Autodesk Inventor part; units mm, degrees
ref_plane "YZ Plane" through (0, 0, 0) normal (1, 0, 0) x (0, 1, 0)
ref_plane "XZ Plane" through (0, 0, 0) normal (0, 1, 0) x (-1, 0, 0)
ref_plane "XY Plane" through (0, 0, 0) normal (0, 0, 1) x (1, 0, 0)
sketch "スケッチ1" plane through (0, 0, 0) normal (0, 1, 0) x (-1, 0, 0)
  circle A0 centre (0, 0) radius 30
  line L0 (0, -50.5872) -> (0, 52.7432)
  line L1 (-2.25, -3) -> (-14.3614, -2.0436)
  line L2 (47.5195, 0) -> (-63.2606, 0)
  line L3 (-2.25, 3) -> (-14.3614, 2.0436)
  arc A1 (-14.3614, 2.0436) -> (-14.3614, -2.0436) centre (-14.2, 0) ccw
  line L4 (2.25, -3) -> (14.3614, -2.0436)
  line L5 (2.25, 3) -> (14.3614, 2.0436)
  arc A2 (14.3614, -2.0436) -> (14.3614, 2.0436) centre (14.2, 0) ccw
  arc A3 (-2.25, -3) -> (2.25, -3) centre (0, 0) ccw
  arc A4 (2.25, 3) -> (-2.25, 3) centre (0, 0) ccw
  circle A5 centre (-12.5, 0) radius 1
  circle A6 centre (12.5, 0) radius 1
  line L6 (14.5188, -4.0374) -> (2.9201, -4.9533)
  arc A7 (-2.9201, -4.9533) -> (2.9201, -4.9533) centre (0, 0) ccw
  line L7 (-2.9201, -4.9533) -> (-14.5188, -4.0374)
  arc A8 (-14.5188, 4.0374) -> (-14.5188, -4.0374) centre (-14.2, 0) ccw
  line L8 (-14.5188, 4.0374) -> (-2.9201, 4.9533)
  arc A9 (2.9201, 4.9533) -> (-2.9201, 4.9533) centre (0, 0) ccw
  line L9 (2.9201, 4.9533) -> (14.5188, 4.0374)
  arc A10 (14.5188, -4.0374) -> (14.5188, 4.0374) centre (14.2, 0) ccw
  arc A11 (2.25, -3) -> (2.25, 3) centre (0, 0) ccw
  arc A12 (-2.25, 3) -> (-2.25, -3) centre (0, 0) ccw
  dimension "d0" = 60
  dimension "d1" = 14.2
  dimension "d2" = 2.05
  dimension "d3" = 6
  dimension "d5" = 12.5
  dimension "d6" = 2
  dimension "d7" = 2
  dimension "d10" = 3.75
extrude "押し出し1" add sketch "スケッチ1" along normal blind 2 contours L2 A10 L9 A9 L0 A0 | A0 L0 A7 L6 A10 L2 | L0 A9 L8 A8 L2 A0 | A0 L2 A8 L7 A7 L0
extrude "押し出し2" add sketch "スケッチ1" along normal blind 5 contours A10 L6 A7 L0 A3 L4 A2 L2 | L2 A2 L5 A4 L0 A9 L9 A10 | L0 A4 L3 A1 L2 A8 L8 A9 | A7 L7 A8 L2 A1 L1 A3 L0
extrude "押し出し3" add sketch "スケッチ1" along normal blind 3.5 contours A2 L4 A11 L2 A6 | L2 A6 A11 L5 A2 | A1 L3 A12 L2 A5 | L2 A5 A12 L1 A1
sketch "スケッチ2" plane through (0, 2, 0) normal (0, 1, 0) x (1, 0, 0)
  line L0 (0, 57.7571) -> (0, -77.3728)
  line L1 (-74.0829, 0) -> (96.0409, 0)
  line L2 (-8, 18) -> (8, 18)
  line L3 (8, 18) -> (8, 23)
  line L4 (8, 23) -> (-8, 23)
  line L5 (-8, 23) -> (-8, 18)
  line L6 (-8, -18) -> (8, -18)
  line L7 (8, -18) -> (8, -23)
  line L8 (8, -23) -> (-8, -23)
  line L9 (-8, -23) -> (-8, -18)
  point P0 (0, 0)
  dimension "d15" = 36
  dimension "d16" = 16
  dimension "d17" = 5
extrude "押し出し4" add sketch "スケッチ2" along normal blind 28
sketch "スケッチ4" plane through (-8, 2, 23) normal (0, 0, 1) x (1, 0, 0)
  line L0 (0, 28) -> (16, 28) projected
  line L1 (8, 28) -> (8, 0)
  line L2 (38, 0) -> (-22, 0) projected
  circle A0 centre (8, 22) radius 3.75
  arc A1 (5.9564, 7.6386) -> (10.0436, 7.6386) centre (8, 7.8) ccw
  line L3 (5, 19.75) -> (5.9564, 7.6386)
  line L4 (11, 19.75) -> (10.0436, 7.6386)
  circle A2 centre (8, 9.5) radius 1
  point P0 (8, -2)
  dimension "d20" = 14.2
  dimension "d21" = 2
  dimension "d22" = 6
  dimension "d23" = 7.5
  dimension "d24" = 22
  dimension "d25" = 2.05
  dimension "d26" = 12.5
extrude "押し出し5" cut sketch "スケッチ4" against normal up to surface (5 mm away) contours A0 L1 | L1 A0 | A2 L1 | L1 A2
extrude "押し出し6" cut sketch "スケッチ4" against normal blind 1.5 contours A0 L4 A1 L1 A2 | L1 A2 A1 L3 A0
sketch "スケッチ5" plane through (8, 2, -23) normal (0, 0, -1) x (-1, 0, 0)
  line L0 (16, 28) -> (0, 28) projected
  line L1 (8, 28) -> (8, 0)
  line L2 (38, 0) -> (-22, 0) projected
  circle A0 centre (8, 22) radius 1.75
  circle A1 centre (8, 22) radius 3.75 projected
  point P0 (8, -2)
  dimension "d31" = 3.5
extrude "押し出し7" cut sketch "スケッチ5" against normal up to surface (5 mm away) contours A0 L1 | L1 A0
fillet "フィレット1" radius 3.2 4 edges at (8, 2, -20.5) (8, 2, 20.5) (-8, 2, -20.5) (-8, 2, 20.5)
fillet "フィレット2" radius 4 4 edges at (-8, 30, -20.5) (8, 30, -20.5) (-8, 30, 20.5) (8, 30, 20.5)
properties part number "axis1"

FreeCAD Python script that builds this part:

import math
import FreeCAD as App
import Part
import Sketcher

V = App.Vector
Q = App.Units.Quantity


def edges_at(feature, points):
    """Names of the edges that pass closest to the given points."""
    edges = feature.Shape.Edges
    near = lambda p: min(range(len(edges)), key=lambda i: edges[i].distToShape(Part.Vertex(*p))[0])
    return sorted({f"Edge{near(p) + 1}" for p in points})

doc = App.newDocument("Part")
body = doc.addObject("PartDesign::Body", "Body")

# Sketch on XZ plane
sketch1 = doc.addObject("Sketcher::SketchObject", "Sketch")
body.addObject(sketch1)
sketch1.AttachmentSupport = (doc.XZ_Plane, [""])
sketch1.MapMode = "FlatFace"
sketch1.addGeometry([
    Part.Circle(V(0, 0, 0), V(0, 0, 1), 30),  # 0
    Part.ArcOfCircle(Part.Circle(V(-14.2, 0, 0), V(0, 0, 1), 4), math.radians(95), math.radians(265)),  # 1
    Part.LineSegment(V(-14.5, -4, 0), V(-2.9, -5, 0)),  # 2
    Part.ArcOfCircle(Part.Circle(V(0, 0, 0), V(0, 0, 1), 5.7), math.radians(-121), math.radians(-59)),  # 3
    Part.LineSegment(V(2.9, -5, 0), V(14.5, -4, 0)),  # 4
    Part.ArcOfCircle(Part.Circle(V(14.2, 0, 0), V(0, 0, 1), 4), math.radians(-85), math.radians(85)),  # 5
    Part.LineSegment(V(14.5, 4, 0), V(2.9, 5, 0)),  # 6
    Part.ArcOfCircle(Part.Circle(V(0, 0, 0), V(0, 0, 1), 5.7), math.radians(59), math.radians(121)),  # 7
    Part.LineSegment(V(-2.9, 5, 0), V(-14.5, 4, 0)),  # 8
], False)
sketch1.addConstraint([
    Sketcher.Constraint("Tangent", 1, 2, 2, 1),
    Sketcher.Constraint("Coincident", 2, 2, 3, 1),
    Sketcher.Constraint("Coincident", 3, 2, 4, 1),
    Sketcher.Constraint("Tangent", 4, 2, 5, 1),
    Sketcher.Constraint("Tangent", 5, 2, 6, 1),
    Sketcher.Constraint("Coincident", 6, 2, 7, 1),
    Sketcher.Constraint("Coincident", 7, 2, 8, 1),
    Sketcher.Constraint("Tangent", 8, 2, 1, 1),
    Sketcher.Constraint("Coincident", 0, 3, -1, 1),
    Sketcher.Constraint("Coincident", 3, 3, -1, 1),
    Sketcher.Constraint("Coincident", 7, 3, -1, 1),
    Sketcher.Constraint("Equal", 1, 5),
    Sketcher.Constraint("Equal", 3, 7),
    Sketcher.Constraint("Symmetric", 1, 3, 5, 3, -1, 1),
    Sketcher.Constraint("Symmetric", 1, 2, 4, 2, -2),
    Sketcher.Constraint("Parallel", 2, 6),
    Sketcher.Constraint("Parallel", 4, 8),
    Sketcher.Constraint("Diameter", 0, Q("60 mm")),
    Sketcher.Constraint("DistanceX", 1, 3, -1, 1, Q("14.2 mm")),
    Sketcher.Constraint("Radius", 1, Q("4.05 mm")),
    Sketcher.Constraint("Radius", 3, Q("5.75 mm")),
    Sketcher.Constraint("DistanceX", 2, 2, -1, 1, Q("2.92 mm")),
])
pad1 = doc.addObject("PartDesign::Pad", "Pad")
body.addObject(pad1)
pad1.Profile = sketch1
pad1.Length = 2
pad1.Reversed = True

# Sketch on XZ plane
sketch2 = doc.addObject("Sketcher::SketchObject", "Sketch001")
body.addObject(sketch2)
sketch2.AttachmentSupport = (doc.XZ_Plane, [""])
sketch2.MapMode = "FlatFace"
sketch2.addGeometry([
    Part.ArcOfCircle(Part.Circle(V(-14.2, 0, 0), V(0, 0, 1), 4), math.radians(95), math.radians(265)),  # 0
    Part.LineSegment(V(-14.5, 4, 0), V(-2.9, 5, 0)),  # 1
    Part.ArcOfCircle(Part.Circle(V(0, 0, 0), V(0, 0, 1), 5.7), math.radians(59), math.radians(121)),  # 2
    Part.LineSegment(V(2.9, 5, 0), V(14.5, 4, 0)),  # 3
    Part.ArcOfCircle(Part.Circle(V(14.2, 0, 0), V(0, 0, 1), 4), math.radians(-85), math.radians(85)),  # 4
    Part.LineSegment(V(14.5, -4, 0), V(2.9, -5, 0)),  # 5
    Part.ArcOfCircle(Part.Circle(V(0, 0, 0), V(0, 0, 1), 5.7), math.radians(-121), math.radians(-59)),  # 6
    Part.LineSegment(V(-2.9, -5, 0), V(-14.5, -4, 0)),  # 7
    Part.ArcOfCircle(Part.Circle(V(0, 0, 0), V(0, 0, 1), 3.8), math.radians(-127), math.radians(-53)),  # 8
    Part.LineSegment(V(2.2, -3, 0), V(14.4, -2, 0)),  # 9
    Part.ArcOfCircle(Part.Circle(V(14.2, 0, 0), V(0, 0, 1), 2), math.radians(-85), math.radians(85)),  # 10
    Part.LineSegment(V(14.4, 2, 0), V(2.2, 3, 0)),  # 11
    Part.ArcOfCircle(Part.Circle(V(0, 0, 0), V(0, 0, 1), 3.8), math.radians(53), math.radians(127)),  # 12
    Part.LineSegment(V(-2.2, 3, 0), V(-14.4, 2, 0)),  # 13
    Part.ArcOfCircle(Part.Circle(V(-14.2, 0, 0), V(0, 0, 1), 2), math.radians(95), math.radians(265)),  # 14
    Part.LineSegment(V(-14.4, -2, 0), V(-2.2, -3, 0)),  # 15
], False)
sketch2.addConstraint([
    Sketcher.Constraint("Tangent", 0, 1, 1, 1),
    Sketcher.Constraint("Coincident", 1, 2, 2, 2),
    Sketcher.Constraint("Coincident", 2, 1, 3, 1),
    Sketcher.Constraint("Tangent", 3, 2, 4, 2),
    Sketcher.Constraint("Tangent", 4, 1, 5, 1),
    Sketcher.Constraint("Coincident", 5, 2, 6, 2),
    Sketcher.Constraint("Coincident", 6, 1, 7, 1),
    Sketcher.Constraint("Tangent", 7, 2, 0, 2),
    Sketcher.Constraint("Coincident", 8, 2, 9, 1),
    Sketcher.Constraint("Tangent", 9, 2, 10, 1),
    Sketcher.Constraint("Tangent", 10, 2, 11, 1),
    Sketcher.Constraint("Coincident", 11, 2, 12, 1),
    Sketcher.Constraint("Coincident", 12, 2, 13, 1),
    Sketcher.Constraint("Tangent", 13, 2, 14, 1),
    Sketcher.Constraint("Tangent", 14, 2, 15, 1),
    Sketcher.Constraint("Coincident", 15, 2, 8, 1),
    Sketcher.Constraint("Coincident", 2, 3, -1, 1),
    Sketcher.Constraint("Coincident", 6, 3, -1, 1),
    Sketcher.Constraint("Coincident", 8, 3, -1, 1),
    Sketcher.Constraint("Coincident", 12, 3, -1, 1),
    Sketcher.Constraint("Coincident", 10, 3, 4, 3),
    Sketcher.Constraint("Coincident", 14, 3, 0, 3),
    Sketcher.Constraint("Equal", 0, 4),
    Sketcher.Constraint("Equal", 2, 6),
    Sketcher.Constraint("Equal", 8, 12),
    Sketcher.Constraint("Equal", 10, 14),
    Sketcher.Constraint("Symmetric", 0, 3, 4, 3, -1, 1),
    Sketcher.Constraint("Symmetric", 0, 1, 3, 2, -2),
    Sketcher.Constraint("Parallel", 1, 5),
    Sketcher.Constraint("Parallel", 3, 7),
    Sketcher.Constraint("Parallel", 5, 9),
    Sketcher.Constraint("Parallel", 7, 11),
    Sketcher.Constraint("Parallel", 9, 13),
    Sketcher.Constraint("Parallel", 11, 15),
    Sketcher.Constraint("Radius", 8, Q("3.75 mm")),
    Sketcher.Constraint("Radius", 10, Q("2.05 mm")),
    Sketcher.Constraint("DistanceX", 0, 3, -1, 1, Q("14.2 mm")),
    Sketcher.Constraint("Radius", 0, Q("4.05 mm")),
    Sketcher.Constraint("Radius", 2, Q("5.75 mm")),
    Sketcher.Constraint("DistanceY", 8, 2, -1, 1, Q("3 mm")),
])
pad2 = doc.addObject("PartDesign::Pad", "Pad001")
body.addObject(pad2)
pad2.Profile = sketch2
pad2.Length = 5
pad2.Reversed = True

# Sketch on XZ plane
sketch3 = doc.addObject("Sketcher::SketchObject", "Sketch002")
body.addObject(sketch3)
sketch3.AttachmentSupport = (doc.XZ_Plane, [""])
sketch3.MapMode = "FlatFace"
sketch3.addGeometry([
    Part.ArcOfCircle(Part.Circle(V(-14.2, 0, 0), V(0, 0, 1), 2), math.radians(95), math.radians(265)),  # 0
    Part.LineSegment(V(-14.4, 2, 0), V(-2.2, 3, 0)),  # 1
    Part.ArcOfCircle(Part.Circle(V(0, 0, 0), V(0, 0, 1), 3.8), math.radians(127), math.radians(233)),  # 2
    Part.LineSegment(V(-2.2, -3, 0), V(-14.4, -2, 0)),  # 3
    Part.Circle(V(-12.5, 0, 0), V(0, 0, 1), 1),  # 4
    Part.ArcOfCircle(Part.Circle(V(14.2, 0, 0), V(0, 0, 1), 2), math.radians(-85), math.radians(85)),  # 5
    Part.LineSegment(V(14.4, -2, 0), V(2.2, -3, 0)),  # 6
    Part.ArcOfCircle(Part.Circle(V(0, 0, 0), V(0, 0, 1), 3.8), math.radians(-53), math.radians(53)),  # 7
    Part.LineSegment(V(2.2, 3, 0), V(14.4, 2, 0)),  # 8
    Part.Circle(V(12.5, 0, 0), V(0, 0, 1), 1),  # 9
], False)
sketch3.addConstraint([
    Sketcher.Constraint("Tangent", 0, 1, 1, 1),
    Sketcher.Constraint("Coincident", 1, 2, 2, 1),
    Sketcher.Constraint("Coincident", 2, 2, 3, 1),
    Sketcher.Constraint("Tangent", 3, 2, 0, 2),
    Sketcher.Constraint("Tangent", 5, 1, 6, 1),
    Sketcher.Constraint("Coincident", 6, 2, 7, 1),
    Sketcher.Constraint("Coincident", 7, 2, 8, 1),
    Sketcher.Constraint("Tangent", 8, 2, 5, 2),
    Sketcher.Constraint("Coincident", 2, 3, -1, 1),
    Sketcher.Constraint("Coincident", 7, 3, -1, 1),
    Sketcher.Constraint("Equal", 0, 5),
    Sketcher.Constraint("Equal", 2, 7),
    Sketcher.Constraint("Equal", 4, 9),
    Sketcher.Constraint("Symmetric", 0, 3, 5, 3, -1, 1),
    Sketcher.Constraint("Symmetric", 4, 3, 9, 3, -1, 1),
    Sketcher.Constraint("Symmetric", 3, 2, 5, 1, -2),
    Sketcher.Constraint("PointOnObject", 4, 3, -1),
    Sketcher.Constraint("Parallel", 1, 6),
    Sketcher.Constraint("Parallel", 3, 8),
    Sketcher.Constraint("Diameter", 4, Q("2 mm")),
    Sketcher.Constraint("Radius", 0, Q("2.05 mm")),
    Sketcher.Constraint("Radius", 2, Q("3.75 mm")),
    Sketcher.Constraint("DistanceY", 2, 2, 1, 2, Q("6 mm")),
    Sketcher.Constraint("DistanceX", 0, 3, -1, 1, Q("14.2 mm")),
    Sketcher.Constraint("DistanceX", 4, 3, -1, 1, Q("12.5 mm")),
])
pad3 = doc.addObject("PartDesign::Pad", "Pad002")
body.addObject(pad3)
pad3.Profile = sketch3
pad3.Length = 3.5
pad3.Reversed = True

# Sketch on XZ plane
sketch4 = doc.addObject("Sketcher::SketchObject", "Sketch003")
body.addObject(sketch4)
sketch4.AttachmentSupport = (doc.XZ_Plane, [""])
sketch4.MapMode = "FlatFace"
sketch4.AttachmentOffset = App.Placement(V(0, 0, -2), App.Rotation())
sketch4.addGeometry([
    Part.LineSegment(V(8, -23, 0), V(-8, -23, 0)),  # 0
    Part.LineSegment(V(-8, -23, 0), V(-8, -18, 0)),  # 1
    Part.LineSegment(V(-8, -18, 0), V(8, -18, 0)),  # 2
    Part.LineSegment(V(8, -18, 0), V(8, -23, 0)),  # 3
    Part.LineSegment(V(8, 18, 0), V(-8, 18, 0)),  # 4
    Part.LineSegment(V(-8, 18, 0), V(-8, 23, 0)),  # 5
    Part.LineSegment(V(-8, 23, 0), V(8, 23, 0)),  # 6
    Part.LineSegment(V(8, 23, 0), V(8, 18, 0)),  # 7
], False)
sketch4.addConstraint([
    Sketcher.Constraint("Coincident", 0, 2, 1, 1),
    Sketcher.Constraint("Coincident", 1, 2, 2, 1),
    Sketcher.Constraint("Coincident", 2, 2, 3, 1),
    Sketcher.Constraint("Coincident", 3, 2, 0, 1),
    Sketcher.Constraint("Coincident", 4, 2, 5, 1),
    Sketcher.Constraint("Coincident", 5, 2, 6, 1),
    Sketcher.Constraint("Coincident", 6, 2, 7, 1),
    Sketcher.Constraint("Coincident", 7, 2, 4, 1),
    Sketcher.Constraint("Horizontal", 0),
    Sketcher.Constraint("Vertical", 1),
    Sketcher.Constraint("Horizontal", 2),
    Sketcher.Constraint("Vertical", 3),
    Sketcher.Constraint("Horizontal", 4),
    Sketcher.Constraint("Vertical", 5),
    Sketcher.Constraint("Horizontal", 6),
    Sketcher.Constraint("Vertical", 7),
    Sketcher.Constraint("Symmetric", 2, 2, 4, 2, -1, 1),
    Sketcher.Constraint("Symmetric", 0, 2, 6, 2, -1, 1),
    Sketcher.Constraint("Vertical", 1, 2, 4, 2),
    Sketcher.Constraint("DistanceX", 0, 2, 0, 1, Q("16 mm")),
    Sketcher.Constraint("DistanceY", 1, 1, 1, 2, Q("5 mm")),
    Sketcher.Constraint("DistanceY", 1, 2, 4, 2, Q("36 mm")),
])
pad4 = doc.addObject("PartDesign::Pad", "Pad003")
body.addObject(pad4)
pad4.Profile = sketch4
pad4.Length = 28
pad4.Reversed = True

# Sketch on XY plane
sketch5 = doc.addObject("Sketcher::SketchObject", "Sketch004")
body.addObject(sketch5)
sketch5.AttachmentSupport = (doc.XY_Plane, [""])
sketch5.MapMode = "FlatFace"
sketch5.AttachmentOffset = App.Placement(V(0, 0, 23), App.Rotation())
sketch5.addGeometry([
    Part.Circle(V(0, 24, 0), V(0, 0, 1), 3.8),
    Part.Circle(V(0, 11.5, 0), V(0, 0, 1), 1),
], False)
sketch5.addConstraint([
    Sketcher.Constraint("PointOnObject", 0, 3, -2),
    Sketcher.Constraint("PointOnObject", 1, 3, -2),
    Sketcher.Constraint("Diameter", 1, Q("2 mm")),
    Sketcher.Constraint("Diameter", 0, Q("7.5 mm")),
    Sketcher.Constraint("DistanceY", 1, 3, 0, 3, Q("12.5 mm")),
    Sketcher.Constraint("DistanceY", -1, 1, 0, 3, Q("24 mm")),
])
pocket1 = doc.addObject("PartDesign::Pocket", "Pocket")
body.addObject(pocket1)
pocket1.Profile = sketch5
pocket1.Length = 5

# Sketch on XY plane
sketch6 = doc.addObject("Sketcher::SketchObject", "Sketch005")
body.addObject(sketch6)
sketch6.AttachmentSupport = (doc.XY_Plane, [""])
sketch6.MapMode = "FlatFace"
sketch6.AttachmentOffset = App.Placement(V(0, 0, 23), App.Rotation())
sketch6.addGeometry([
    Part.ArcOfCircle(Part.Circle(V(0, 24, 0), V(0, 0, 1), 3.8), math.radians(-143), math.radians(-37)),  # 0
    Part.LineSegment(V(-3, 21.8, 0), V(-2, 9.6, 0)),  # 1
    Part.ArcOfCircle(Part.Circle(V(0, 9.8, 0), V(0, 0, 1), 2), math.radians(-175), math.radians(-5)),  # 2
    Part.LineSegment(V(2, 9.6, 0), V(3, 21.8, 0)),  # 3
    Part.Circle(V(0, 11.5, 0), V(0, 0, 1), 1),  # 4
], False)
sketch6.addConstraint([
    Sketcher.Constraint("Coincident", 0, 1, 1, 1),
    Sketcher.Constraint("Tangent", 1, 2, 2, 1),
    Sketcher.Constraint("Tangent", 2, 2, 3, 1),
    Sketcher.Constraint("Coincident", 3, 2, 0, 2),
    Sketcher.Constraint("Symmetric", 1, 2, 2, 2, -2),
    Sketcher.Constraint("PointOnObject", 0, 3, -2),
    Sketcher.Constraint("PointOnObject", 4, 3, -2),
    Sketcher.Constraint("Diameter", 4, Q("2 mm")),
    Sketcher.Constraint("Radius", 0, Q("3.75 mm")),
    Sketcher.Constraint("Radius", 2, Q("2.05 mm")),
    Sketcher.Constraint("DistanceX", 0, 1, 3, 2, Q("6 mm")),
    Sketcher.Constraint("DistanceY", 2, 3, 0, 3, Q("14.2 mm")),
    Sketcher.Constraint("DistanceY", 4, 3, 0, 3, Q("12.5 mm")),
    Sketcher.Constraint("DistanceY", -1, 1, 0, 3, Q("24 mm")),
])
pocket2 = doc.addObject("PartDesign::Pocket", "Pocket001")
body.addObject(pocket2)
pocket2.Profile = sketch6
pocket2.Length = 1.5

# Sketch on XY plane
sketch7 = doc.addObject("Sketcher::SketchObject", "Sketch006")
body.addObject(sketch7)
sketch7.AttachmentSupport = (doc.XY_Plane, [""])
sketch7.MapMode = "FlatFace"
sketch7.AttachmentOffset = App.Placement(V(0, 0, -23), App.Rotation())
sketch7.addGeometry(Part.Circle(V(0, 24, 0), V(0, 0, 1), 1.8), False)
sketch7.addConstraint([
    Sketcher.Constraint("PointOnObject", 0, 3, -2),
    Sketcher.Constraint("Diameter", 0, Q("3.5 mm")),
    Sketcher.Constraint("DistanceY", -1, 1, 0, 3, Q("24 mm")),
])
pocket3 = doc.addObject("PartDesign::Pocket", "Pocket002")
body.addObject(pocket3)
pocket3.Profile = sketch7
pocket3.Length = 5
pocket3.Reversed = True
doc.recompute()

fillet = doc.addObject("PartDesign::Fillet", "Fillet")
body.addObject(fillet)
fillet.Base = (pocket3, edges_at(pocket3, [
    (8, 2, -20.5),
    (8, 2, 20.5),
    (-8, 2, -20.5),
    (-8, 2, 20.5),
]))
fillet.Radius = 3.2
doc.recompute()

fillet2 = doc.addObject("PartDesign::Fillet", "Fillet001")
body.addObject(fillet2)
fillet2.Base = (fillet, edges_at(fillet, [
    (-8, 30, -20.5),
    (8, 30, -20.5),
    (-8, 30, 20.5),
    (8, 30, 20.5),
]))
fillet2.Radius = 4

doc.recompute()
